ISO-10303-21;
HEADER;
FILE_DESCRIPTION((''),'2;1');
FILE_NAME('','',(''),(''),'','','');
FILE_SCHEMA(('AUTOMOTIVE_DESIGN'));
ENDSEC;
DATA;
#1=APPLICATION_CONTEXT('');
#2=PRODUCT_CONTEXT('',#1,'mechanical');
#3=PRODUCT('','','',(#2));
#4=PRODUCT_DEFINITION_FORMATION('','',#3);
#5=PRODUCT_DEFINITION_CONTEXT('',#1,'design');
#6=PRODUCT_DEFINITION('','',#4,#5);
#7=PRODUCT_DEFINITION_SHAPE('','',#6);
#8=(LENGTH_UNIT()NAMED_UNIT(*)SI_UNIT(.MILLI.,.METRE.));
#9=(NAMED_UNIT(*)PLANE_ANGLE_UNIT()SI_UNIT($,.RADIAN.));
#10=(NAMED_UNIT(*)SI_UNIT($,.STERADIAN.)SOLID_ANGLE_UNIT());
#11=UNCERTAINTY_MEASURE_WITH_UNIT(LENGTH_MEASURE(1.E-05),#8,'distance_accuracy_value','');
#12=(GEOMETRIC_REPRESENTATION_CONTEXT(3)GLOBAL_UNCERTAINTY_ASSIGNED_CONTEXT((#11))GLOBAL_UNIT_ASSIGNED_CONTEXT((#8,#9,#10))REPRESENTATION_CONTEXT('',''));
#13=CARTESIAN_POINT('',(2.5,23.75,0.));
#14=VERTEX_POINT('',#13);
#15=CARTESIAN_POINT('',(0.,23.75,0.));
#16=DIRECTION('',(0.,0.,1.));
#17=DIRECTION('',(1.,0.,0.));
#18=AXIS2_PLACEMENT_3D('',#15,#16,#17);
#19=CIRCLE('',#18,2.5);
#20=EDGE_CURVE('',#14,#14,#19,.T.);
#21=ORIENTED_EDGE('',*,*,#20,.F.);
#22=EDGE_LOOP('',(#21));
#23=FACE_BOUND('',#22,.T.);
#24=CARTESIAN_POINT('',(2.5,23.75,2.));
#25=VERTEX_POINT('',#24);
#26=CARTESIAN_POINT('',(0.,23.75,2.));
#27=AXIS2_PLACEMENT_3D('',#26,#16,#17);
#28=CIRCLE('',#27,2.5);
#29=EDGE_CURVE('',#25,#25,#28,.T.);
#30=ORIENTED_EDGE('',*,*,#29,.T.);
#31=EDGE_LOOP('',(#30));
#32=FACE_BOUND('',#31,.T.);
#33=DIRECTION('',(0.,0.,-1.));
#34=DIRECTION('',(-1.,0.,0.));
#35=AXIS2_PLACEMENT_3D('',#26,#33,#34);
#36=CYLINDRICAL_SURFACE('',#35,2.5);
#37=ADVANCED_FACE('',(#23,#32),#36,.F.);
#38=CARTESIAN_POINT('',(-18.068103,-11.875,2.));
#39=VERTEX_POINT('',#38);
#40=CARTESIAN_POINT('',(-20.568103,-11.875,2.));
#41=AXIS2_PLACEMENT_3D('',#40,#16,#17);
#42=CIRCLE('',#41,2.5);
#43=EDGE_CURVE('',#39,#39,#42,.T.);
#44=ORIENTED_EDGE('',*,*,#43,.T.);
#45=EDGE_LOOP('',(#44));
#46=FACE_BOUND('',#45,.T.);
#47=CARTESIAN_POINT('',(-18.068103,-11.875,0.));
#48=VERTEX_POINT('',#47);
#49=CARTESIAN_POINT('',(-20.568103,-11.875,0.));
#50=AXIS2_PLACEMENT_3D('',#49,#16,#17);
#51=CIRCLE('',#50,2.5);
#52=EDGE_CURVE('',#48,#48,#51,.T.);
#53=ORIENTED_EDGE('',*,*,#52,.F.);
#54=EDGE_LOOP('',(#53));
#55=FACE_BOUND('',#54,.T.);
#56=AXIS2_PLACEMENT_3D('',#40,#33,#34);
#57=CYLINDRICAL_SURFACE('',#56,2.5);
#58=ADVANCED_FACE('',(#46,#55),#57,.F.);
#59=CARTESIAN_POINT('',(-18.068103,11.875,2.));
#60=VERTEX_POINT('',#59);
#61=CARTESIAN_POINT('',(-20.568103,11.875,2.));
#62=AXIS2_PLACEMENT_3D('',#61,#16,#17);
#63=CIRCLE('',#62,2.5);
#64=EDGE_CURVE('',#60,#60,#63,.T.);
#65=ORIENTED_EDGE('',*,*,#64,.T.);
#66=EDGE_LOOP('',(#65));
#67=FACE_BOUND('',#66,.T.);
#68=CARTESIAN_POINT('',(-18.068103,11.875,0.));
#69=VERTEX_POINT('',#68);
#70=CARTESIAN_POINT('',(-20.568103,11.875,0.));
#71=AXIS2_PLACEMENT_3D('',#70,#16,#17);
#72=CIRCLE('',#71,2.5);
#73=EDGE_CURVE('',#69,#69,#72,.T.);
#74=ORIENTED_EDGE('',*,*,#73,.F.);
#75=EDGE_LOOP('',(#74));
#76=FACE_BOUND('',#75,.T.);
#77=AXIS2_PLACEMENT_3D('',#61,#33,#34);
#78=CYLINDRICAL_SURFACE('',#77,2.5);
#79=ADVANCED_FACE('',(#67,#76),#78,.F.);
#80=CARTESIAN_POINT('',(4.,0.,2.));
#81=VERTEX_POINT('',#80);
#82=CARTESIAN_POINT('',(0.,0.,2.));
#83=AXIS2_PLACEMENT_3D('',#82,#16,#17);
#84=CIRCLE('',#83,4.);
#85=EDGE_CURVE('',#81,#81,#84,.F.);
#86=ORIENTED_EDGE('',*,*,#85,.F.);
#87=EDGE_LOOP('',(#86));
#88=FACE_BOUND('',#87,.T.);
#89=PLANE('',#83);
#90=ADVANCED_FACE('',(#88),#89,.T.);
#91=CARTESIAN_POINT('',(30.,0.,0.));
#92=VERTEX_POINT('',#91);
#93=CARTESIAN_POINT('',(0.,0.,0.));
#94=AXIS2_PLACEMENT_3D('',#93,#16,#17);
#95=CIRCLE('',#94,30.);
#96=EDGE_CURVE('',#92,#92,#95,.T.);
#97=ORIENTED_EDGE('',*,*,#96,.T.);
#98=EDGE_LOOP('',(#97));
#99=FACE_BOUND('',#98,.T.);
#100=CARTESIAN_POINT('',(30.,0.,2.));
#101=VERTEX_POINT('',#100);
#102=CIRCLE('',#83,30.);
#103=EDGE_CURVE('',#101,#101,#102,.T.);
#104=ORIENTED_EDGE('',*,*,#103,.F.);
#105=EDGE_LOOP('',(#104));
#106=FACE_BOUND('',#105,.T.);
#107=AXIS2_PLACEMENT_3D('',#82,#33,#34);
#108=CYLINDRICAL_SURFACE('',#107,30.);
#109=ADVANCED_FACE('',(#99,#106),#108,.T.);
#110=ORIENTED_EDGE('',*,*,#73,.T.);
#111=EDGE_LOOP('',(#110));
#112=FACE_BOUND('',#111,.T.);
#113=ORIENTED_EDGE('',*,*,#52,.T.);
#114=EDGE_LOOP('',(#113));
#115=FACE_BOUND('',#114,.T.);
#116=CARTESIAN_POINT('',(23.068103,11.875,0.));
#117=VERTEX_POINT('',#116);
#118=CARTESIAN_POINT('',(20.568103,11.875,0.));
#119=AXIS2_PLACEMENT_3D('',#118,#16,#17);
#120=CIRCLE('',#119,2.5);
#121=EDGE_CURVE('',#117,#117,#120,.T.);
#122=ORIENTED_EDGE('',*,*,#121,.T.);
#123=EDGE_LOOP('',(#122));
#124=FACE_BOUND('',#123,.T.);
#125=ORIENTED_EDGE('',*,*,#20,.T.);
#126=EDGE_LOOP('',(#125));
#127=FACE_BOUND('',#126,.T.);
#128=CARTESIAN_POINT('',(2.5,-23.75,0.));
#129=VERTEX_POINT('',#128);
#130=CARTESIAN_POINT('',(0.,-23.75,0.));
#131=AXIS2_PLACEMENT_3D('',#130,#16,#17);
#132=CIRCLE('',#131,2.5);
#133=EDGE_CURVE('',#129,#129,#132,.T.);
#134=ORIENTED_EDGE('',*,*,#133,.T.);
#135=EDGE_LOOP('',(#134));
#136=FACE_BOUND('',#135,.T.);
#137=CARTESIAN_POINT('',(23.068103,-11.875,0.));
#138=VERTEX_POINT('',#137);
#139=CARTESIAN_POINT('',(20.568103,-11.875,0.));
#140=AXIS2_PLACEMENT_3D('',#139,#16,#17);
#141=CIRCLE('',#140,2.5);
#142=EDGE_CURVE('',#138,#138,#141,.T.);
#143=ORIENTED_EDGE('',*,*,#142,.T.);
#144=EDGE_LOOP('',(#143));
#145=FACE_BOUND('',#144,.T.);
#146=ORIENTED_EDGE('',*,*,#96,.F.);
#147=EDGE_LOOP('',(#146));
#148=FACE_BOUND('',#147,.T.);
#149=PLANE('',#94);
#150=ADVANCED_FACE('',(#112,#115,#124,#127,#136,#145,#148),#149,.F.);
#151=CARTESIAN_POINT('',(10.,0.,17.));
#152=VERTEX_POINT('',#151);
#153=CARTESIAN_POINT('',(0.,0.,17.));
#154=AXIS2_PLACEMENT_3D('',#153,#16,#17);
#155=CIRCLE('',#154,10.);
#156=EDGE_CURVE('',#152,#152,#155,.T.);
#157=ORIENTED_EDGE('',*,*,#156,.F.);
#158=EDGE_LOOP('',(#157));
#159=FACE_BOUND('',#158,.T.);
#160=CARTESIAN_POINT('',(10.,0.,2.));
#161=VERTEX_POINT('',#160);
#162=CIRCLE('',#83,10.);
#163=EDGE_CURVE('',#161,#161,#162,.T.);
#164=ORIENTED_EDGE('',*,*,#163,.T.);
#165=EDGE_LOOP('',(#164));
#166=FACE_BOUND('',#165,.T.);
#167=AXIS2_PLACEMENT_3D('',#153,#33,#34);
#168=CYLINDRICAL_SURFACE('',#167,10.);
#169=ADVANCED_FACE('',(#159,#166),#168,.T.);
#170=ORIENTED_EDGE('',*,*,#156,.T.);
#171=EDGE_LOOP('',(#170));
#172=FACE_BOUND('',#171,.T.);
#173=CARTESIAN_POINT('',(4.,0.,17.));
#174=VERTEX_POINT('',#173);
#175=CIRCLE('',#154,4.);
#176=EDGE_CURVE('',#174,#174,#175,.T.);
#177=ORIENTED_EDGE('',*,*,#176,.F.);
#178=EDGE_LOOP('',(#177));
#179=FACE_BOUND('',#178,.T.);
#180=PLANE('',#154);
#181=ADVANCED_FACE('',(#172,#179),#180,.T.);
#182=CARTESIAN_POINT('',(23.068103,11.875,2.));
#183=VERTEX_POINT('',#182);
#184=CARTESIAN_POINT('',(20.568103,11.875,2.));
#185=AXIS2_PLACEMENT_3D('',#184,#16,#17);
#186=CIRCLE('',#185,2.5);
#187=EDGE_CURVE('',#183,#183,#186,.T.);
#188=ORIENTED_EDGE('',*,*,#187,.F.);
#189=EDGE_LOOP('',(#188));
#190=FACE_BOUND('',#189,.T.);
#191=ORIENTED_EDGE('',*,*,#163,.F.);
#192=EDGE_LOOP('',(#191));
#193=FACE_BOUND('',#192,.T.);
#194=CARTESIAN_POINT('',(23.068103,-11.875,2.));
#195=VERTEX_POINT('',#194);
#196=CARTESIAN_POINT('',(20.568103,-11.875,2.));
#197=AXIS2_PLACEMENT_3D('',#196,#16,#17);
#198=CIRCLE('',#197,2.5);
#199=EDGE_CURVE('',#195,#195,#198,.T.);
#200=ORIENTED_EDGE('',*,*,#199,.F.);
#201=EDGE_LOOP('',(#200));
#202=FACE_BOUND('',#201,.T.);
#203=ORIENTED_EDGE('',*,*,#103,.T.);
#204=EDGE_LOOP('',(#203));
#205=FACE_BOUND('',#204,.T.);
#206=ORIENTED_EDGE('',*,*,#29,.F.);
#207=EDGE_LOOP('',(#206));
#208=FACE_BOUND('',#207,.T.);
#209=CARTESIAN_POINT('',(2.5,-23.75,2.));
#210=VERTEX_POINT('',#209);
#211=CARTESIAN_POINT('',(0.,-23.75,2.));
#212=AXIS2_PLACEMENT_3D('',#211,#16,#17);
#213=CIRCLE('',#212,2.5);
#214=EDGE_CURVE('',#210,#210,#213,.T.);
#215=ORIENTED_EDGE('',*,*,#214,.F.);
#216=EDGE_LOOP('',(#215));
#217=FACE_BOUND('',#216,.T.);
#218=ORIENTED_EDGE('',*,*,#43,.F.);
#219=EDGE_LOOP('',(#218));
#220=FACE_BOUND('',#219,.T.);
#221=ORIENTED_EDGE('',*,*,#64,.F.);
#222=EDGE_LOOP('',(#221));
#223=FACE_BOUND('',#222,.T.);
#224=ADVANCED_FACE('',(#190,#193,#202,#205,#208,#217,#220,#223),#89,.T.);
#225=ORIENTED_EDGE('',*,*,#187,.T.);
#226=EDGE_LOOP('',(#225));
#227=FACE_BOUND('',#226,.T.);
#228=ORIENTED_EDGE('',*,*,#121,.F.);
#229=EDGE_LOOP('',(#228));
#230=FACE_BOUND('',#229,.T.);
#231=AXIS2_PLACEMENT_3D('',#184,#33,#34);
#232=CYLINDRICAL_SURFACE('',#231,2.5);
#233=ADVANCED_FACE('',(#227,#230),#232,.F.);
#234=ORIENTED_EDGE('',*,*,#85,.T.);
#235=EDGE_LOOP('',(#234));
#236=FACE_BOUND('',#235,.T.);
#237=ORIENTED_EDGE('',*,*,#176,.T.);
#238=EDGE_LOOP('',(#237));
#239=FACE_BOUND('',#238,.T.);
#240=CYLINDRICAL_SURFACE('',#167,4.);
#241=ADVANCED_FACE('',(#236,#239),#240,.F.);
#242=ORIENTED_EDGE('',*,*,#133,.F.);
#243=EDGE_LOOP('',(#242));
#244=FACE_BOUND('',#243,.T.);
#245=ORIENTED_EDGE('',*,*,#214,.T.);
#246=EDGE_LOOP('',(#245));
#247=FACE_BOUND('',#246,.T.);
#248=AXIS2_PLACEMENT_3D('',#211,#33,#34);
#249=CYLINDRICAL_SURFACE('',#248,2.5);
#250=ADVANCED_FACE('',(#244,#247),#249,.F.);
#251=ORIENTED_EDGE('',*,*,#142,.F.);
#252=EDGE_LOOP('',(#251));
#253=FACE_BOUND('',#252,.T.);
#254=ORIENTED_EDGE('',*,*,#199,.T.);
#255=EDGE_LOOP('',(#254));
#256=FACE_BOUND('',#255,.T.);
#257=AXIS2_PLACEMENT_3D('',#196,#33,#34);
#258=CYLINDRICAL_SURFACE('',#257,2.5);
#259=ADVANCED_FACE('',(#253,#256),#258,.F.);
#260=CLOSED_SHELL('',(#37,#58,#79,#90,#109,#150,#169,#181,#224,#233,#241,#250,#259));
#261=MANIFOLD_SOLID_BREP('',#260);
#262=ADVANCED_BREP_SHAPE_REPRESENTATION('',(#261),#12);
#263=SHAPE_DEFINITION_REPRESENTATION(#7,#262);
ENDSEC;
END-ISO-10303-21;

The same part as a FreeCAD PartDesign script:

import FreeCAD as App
import Part
import Sketcher

V = App.Vector

doc = App.newDocument("Part")
params = doc.addObject("Spreadsheet::Sheet", "Params")
for row, (alias, value) in enumerate([
    ("sketch1_diameter", "60 mm"),
    ("sketch1_diameter2", "5 mm"),
    ("pad1_length", "2 mm"),
    ("sketch2_diameter", "20 mm"),
    ("sketch2_diameter2", "8 mm"),
    ("pad2_length", "15 mm"),
], start=1):
    params.set(f"A{row}", alias)
    params.set(f"B{row}", "=" + value)
    params.setAlias(f"B{row}", alias)

body = doc.addObject("PartDesign::Body", "Body")

sketch1 = doc.addObject("Sketcher::SketchObject", "Sketch")
body.addObject(sketch1)
sketch1.AttachmentSupport = (doc.XY_Plane, [""])
sketch1.MapMode = "FlatFace"
sketch1.addGeometry(Part.Circle(V(0, 0, 0), V(0, 0, 1), 30), False)
sketch1.addGeometry(Part.Circle(V(-20.568103, -11.875, 0), V(0, 0, 1), 2.5), False)
sketch1.addGeometry(Part.Circle(V(0, -23.75, 0), V(0, 0, 1), 2.5), False)
sketch1.addGeometry(Part.Circle(V(20.568103, -11.875, 0), V(0, 0, 1), 2.5), False)
sketch1.addGeometry(Part.Circle(V(-20.568103, 11.875, 0), V(0, 0, 1), 2.5), False)
sketch1.addGeometry(Part.Circle(V(20.568103, 11.875, 0), V(0, 0, 1), 2.5), False)
sketch1.addGeometry(Part.Circle(V(0, 23.75, 0), V(0, 0, 1), 2.5), False)
sketch1.addConstraint(Sketcher.Constraint("Coincident", 0, 3, -1, 1))
sketch1.addConstraint(Sketcher.Constraint("Equal", 1, 2))
sketch1.addConstraint(Sketcher.Constraint("Equal", 2, 3))
sketch1.addConstraint(Sketcher.Constraint("Equal", 3, 4))
sketch1.addConstraint(Sketcher.Constraint("Equal", 4, 5))
sketch1.addConstraint(Sketcher.Constraint("Equal", 5, 6))
sketch1.addConstraint(Sketcher.Constraint("Symmetric", 3, 3, 4, 3, -1, 1))
sketch1.addConstraint(Sketcher.Constraint("Symmetric", 1, 3, 5, 3, -1, 1))
sketch1.addConstraint(Sketcher.Constraint("Symmetric", 2, 3, 6, 3, -1, 1))
sketch1.addConstraint(Sketcher.Constraint("Symmetric", 1, 3, 3, 3, -2))
sketch1.addConstraint(Sketcher.Constraint("PointOnObject", 2, 3, -2))
sketch1.addConstraint(Sketcher.Constraint("Diameter", 0, 60.0))
sketch1.addConstraint(Sketcher.Constraint("Diameter", 1, 5.0))
sketch1.addConstraint(Sketcher.Constraint("DistanceY", 2, 3, -1, 1, 23.75))
sketch1.addConstraint(Sketcher.Constraint("DistanceY", 1, 3, 4, 3, 23.75))
sketch1.addConstraint(Sketcher.Constraint("DistanceX", 1, 3, -1, 1, 20.568103))
sketch1.setExpression("Constraints[11]", "Params.sketch1_diameter")
sketch1.setExpression("Constraints[12]", "Params.sketch1_diameter2")
pad1 = doc.addObject("PartDesign::Pad", "Pad")
body.addObject(pad1)
pad1.Profile = sketch1
pad1.setExpression("Length", "Params.pad1_length")

sketch2 = doc.addObject("Sketcher::SketchObject", "Sketch001")
body.addObject(sketch2)
sketch2.AttachmentSupport = (doc.XY_Plane, [""])
sketch2.MapMode = "FlatFace"
sketch2.AttachmentOffset = App.Placement(V(0, 0, 2), App.Rotation())
sketch2.addGeometry(Part.Circle(V(0, 0, 0), V(0, 0, 1), 10), False)
sketch2.addGeometry(Part.Circle(V(0, 0, 0), V(0, 0, 1), 4), False)
sketch2.addConstraint(Sketcher.Constraint("Coincident", 0, 3, -1, 1))
sketch2.addConstraint(Sketcher.Constraint("Coincident", 1, 3, -1, 1))
sketch2.addConstraint(Sketcher.Constraint("Diameter", 0, 20.0))
sketch2.addConstraint(Sketcher.Constraint("Diameter", 1, 8.0))
sketch2.setExpression("Constraints[2]", "Params.sketch2_diameter")
sketch2.setExpression("Constraints[3]", "Params.sketch2_diameter2")
pad2 = doc.addObject("PartDesign::Pad", "Pad001")
body.addObject(pad2)
pad2.Profile = sketch2
pad2.setExpression("Length", "Params.pad2_length")

doc.recompute()
